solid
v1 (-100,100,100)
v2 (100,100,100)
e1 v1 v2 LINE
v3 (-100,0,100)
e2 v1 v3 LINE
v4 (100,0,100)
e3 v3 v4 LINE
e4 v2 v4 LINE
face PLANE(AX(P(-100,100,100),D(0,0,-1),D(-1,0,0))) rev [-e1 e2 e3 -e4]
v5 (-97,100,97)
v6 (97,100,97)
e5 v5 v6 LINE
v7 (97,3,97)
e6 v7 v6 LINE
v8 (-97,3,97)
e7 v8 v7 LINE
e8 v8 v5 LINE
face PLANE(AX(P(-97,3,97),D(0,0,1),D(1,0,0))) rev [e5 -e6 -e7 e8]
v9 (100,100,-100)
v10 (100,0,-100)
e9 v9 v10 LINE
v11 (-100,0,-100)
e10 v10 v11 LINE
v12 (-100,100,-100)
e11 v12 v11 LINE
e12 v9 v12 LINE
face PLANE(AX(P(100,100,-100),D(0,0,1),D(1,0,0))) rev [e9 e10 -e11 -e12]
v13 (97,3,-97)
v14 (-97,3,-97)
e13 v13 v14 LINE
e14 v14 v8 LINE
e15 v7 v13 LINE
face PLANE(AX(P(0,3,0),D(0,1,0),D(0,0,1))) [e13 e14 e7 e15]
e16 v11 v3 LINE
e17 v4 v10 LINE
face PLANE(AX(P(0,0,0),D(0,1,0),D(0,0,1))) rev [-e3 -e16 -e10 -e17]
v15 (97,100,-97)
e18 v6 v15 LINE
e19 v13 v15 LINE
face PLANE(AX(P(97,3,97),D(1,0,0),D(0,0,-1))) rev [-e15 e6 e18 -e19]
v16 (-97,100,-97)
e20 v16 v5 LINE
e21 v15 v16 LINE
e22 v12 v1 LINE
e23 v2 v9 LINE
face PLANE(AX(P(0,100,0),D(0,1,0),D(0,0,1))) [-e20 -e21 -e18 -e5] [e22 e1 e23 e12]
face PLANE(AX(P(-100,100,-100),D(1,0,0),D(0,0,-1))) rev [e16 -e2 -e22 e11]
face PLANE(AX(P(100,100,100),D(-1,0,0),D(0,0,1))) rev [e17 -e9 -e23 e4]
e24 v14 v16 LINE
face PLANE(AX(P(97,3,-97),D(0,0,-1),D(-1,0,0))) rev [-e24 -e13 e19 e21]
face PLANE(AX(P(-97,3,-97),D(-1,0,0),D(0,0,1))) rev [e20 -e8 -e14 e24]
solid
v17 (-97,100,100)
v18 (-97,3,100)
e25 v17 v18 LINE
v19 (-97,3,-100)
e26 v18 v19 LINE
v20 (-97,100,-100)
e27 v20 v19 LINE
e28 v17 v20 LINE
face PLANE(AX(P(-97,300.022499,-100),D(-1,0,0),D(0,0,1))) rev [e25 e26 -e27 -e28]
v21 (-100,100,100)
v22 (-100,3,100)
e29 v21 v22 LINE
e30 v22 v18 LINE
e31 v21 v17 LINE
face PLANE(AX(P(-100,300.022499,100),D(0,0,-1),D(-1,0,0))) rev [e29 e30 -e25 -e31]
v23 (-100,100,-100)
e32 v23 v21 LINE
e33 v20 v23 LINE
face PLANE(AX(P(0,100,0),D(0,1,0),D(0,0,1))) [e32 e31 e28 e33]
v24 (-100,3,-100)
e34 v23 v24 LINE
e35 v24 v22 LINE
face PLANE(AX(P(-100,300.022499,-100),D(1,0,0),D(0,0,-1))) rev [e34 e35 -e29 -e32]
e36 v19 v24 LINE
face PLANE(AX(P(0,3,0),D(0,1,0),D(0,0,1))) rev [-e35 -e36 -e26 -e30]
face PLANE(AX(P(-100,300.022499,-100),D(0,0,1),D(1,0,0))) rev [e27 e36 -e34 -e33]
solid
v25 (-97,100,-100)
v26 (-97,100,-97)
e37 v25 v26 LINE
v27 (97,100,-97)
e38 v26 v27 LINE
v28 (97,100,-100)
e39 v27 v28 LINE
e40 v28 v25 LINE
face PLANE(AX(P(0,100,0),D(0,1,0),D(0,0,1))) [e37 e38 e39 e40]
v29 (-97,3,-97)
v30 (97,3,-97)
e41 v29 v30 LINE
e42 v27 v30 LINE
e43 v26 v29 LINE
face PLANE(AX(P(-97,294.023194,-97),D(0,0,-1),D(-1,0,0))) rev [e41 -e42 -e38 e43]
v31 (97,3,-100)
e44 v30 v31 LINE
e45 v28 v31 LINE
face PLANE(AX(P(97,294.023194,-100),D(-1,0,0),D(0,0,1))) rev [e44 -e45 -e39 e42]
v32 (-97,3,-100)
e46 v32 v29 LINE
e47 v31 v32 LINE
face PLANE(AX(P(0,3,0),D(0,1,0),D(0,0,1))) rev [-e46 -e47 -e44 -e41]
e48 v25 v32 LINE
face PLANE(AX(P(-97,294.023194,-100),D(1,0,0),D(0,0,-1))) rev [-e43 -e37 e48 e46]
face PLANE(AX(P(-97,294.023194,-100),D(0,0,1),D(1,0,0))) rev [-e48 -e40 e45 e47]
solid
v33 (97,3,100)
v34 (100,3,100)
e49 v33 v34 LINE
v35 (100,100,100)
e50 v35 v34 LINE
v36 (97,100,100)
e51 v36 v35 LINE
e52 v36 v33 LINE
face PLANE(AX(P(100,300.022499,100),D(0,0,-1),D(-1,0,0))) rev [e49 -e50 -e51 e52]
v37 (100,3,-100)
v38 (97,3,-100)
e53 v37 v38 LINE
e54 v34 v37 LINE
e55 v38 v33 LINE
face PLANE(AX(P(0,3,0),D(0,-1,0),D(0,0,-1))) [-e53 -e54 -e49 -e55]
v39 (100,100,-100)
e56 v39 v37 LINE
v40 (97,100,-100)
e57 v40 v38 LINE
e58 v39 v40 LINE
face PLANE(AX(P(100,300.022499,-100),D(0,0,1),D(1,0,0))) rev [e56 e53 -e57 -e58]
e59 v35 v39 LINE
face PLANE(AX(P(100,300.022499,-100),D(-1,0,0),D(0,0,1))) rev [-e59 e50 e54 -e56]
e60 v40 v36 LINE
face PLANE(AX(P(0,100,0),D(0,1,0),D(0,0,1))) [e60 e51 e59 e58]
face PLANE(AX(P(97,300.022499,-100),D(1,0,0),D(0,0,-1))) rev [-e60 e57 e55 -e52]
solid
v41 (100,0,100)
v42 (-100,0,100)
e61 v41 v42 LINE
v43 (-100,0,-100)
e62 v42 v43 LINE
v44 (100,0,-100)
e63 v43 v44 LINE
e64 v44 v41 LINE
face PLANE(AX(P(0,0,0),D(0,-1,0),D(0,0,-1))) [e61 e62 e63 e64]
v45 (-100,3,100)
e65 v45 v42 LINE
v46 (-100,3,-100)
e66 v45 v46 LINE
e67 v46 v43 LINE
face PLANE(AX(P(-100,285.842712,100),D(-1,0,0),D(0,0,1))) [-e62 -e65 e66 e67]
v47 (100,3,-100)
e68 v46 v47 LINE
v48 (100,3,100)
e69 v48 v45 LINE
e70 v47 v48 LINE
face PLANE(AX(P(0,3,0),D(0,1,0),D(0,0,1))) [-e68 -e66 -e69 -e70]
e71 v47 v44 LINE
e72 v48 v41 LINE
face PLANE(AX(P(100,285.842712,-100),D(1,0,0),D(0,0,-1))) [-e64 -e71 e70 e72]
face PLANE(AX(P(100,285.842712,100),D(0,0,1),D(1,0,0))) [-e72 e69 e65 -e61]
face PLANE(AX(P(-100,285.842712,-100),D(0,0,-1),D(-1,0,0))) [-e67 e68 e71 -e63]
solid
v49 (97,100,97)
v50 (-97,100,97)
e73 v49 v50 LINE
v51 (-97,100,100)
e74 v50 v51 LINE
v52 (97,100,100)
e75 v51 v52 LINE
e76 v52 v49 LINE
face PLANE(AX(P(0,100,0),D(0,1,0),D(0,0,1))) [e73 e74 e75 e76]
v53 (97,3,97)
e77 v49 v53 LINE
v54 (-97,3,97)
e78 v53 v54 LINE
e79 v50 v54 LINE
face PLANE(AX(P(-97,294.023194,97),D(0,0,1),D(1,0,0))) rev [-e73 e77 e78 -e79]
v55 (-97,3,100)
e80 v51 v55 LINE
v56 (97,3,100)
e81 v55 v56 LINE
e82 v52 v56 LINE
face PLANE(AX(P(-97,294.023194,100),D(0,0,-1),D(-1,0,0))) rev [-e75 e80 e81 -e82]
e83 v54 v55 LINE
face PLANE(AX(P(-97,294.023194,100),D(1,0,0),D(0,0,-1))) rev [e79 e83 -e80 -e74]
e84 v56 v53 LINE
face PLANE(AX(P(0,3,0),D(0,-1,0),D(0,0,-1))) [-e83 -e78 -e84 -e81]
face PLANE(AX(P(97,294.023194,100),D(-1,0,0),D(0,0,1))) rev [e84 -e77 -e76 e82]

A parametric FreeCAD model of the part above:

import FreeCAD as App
import Part
import Sketcher
from FreeCAD import Vector

doc = App.newDocument("Part")
body = doc.addObject("PartDesign::Body", "Body")

sketch1 = body.newObject("Sketcher::SketchObject", "Sketch")
sketch1.AttachmentSupport = (doc.getObject("XZ_Plane"), [""])
sketch1.MapMode = "FlatFace"
sketch1.addGeometry(Part.LineSegment(Vector(-100, -100, 0), Vector(-100, 100, 0)), False)
sketch1.addGeometry(Part.LineSegment(Vector(-100, 100, 0), Vector(100, 100, 0)), False)
sketch1.addGeometry(Part.LineSegment(Vector(100, 100, 0), Vector(100, -100, 0)), False)
sketch1.addGeometry(Part.LineSegment(Vector(100, -100, 0), Vector(-100, -100, 0)), False)
sketch1.addConstraint(Sketcher.Constraint("Coincident", 0, 2, 1, 1))
sketch1.addConstraint(Sketcher.Constraint("Coincident", 1, 2, 2, 1))
sketch1.addConstraint(Sketcher.Constraint("Coincident", 2, 2, 3, 1))
sketch1.addConstraint(Sketcher.Constraint("Coincident", 3, 2, 0, 1))
sketch1.addConstraint(Sketcher.Constraint("Vertical", 0))
sketch1.addConstraint(Sketcher.Constraint("Horizontal", 1))
sketch1.addConstraint(Sketcher.Constraint("Vertical", 2))
sketch1.addConstraint(Sketcher.Constraint("Horizontal", 3))
sketch1.addConstraint(Sketcher.Constraint("Symmetric", 0, 2, 2, 2, -1, 1))
sketch1.addConstraint(Sketcher.Constraint("Equal", 3, 0))
sketch1.addConstraint(Sketcher.Constraint("DistanceX", 1, 1, 1, 2, 200.0))
pad1 = body.newObject("PartDesign::Pad", "Pad")
pad1.Profile = sketch1
pad1.Length = 100
pad1.Reversed = True

sketch2 = body.newObject("Sketcher::SketchObject", "Sketch001")
sketch2.AttachmentSupport = (doc.getObject("XZ_Plane"), [""])
sketch2.MapMode = "FlatFace"
sketch2.AttachmentOffset = App.Placement(Vector(0, 0, -100), App.Rotation())
sketch2.addGeometry(Part.LineSegment(Vector(-97, -97, 0), Vector(-97, 97, 0)), False)
sketch2.addGeometry(Part.LineSegment(Vector(-97, 97, 0), Vector(97, 97, 0)), False)
sketch2.addGeometry(Part.LineSegment(Vector(97, 97, 0), Vector(97, -97, 0)), False)
sketch2.addGeometry(Part.LineSegment(Vector(97, -97, 0), Vector(-97, -97, 0)), False)
sketch2.addConstraint(Sketcher.Constraint("Coincident", 0, 2, 1, 1))
sketch2.addConstraint(Sketcher.Constraint("Coincident", 1, 2, 2, 1))
sketch2.addConstraint(Sketcher.Constraint("Coincident", 2, 2, 3, 1))
sketch2.addConstraint(Sketcher.Constraint("Coincident", 3, 2, 0, 1))
sketch2.addConstraint(Sketcher.Constraint("Vertical", 0))
sketch2.addConstraint(Sketcher.Constraint("Horizontal", 1))
sketch2.addConstraint(Sketcher.Constraint("Vertical", 2))
sketch2.addConstraint(Sketcher.Constraint("Horizontal", 3))
sketch2.addConstraint(Sketcher.Constraint("Symmetric", 0, 2, 2, 2, -1, 1))
sketch2.addConstraint(Sketcher.Constraint("Equal", 3, 0))
sketch2.addConstraint(Sketcher.Constraint("DistanceX", 1, 1, 1, 2, 194.0))
pocket1 = body.newObject("PartDesign::Pocket", "Pocket")
pocket1.Profile = sketch2
pocket1.Length = 97
pocket1.Reversed = True
body2 = doc.addObject("PartDesign::Body", "Body001")

sketch3 = body2.newObject("Sketcher::SketchObject", "Sketch002")
sketch3.AttachmentSupport = (doc.getObject("XZ_Plane001"), [""])
sketch3.MapMode = "FlatFace"
sketch3.addGeometry(Part.LineSegment(Vector(-100, 100, 0), Vector(-100, -100, 0)), False)
sketch3.addGeometry(Part.LineSegment(Vector(-100, -100, 0), Vector(100, -100, 0)), False)
sketch3.addGeometry(Part.LineSegment(Vector(100, -100, 0), Vector(100, 100, 0)), False)
sketch3.addGeometry(Part.LineSegment(Vector(100, 100, 0), Vector(-100, 100, 0)), False)
sketch3.addConstraint(Sketcher.Constraint("Coincident", 0, 2, 1, 1))
sketch3.addConstraint(Sketcher.Constraint("Coincident", 1, 2, 2, 1))
sketch3.addConstraint(Sketcher.Constraint("Coincident", 2, 2, 3, 1))
sketch3.addConstraint(Sketcher.Constraint("Coincident", 3, 2, 0, 1))
sketch3.addConstraint(Sketcher.Constraint("Vertical", 0))
sketch3.addConstraint(Sketcher.Constraint("Horizontal", 1))
sketch3.addConstraint(Sketcher.Constraint("Vertical", 2))
sketch3.addConstraint(Sketcher.Constraint("Horizontal", 3))
sketch3.addConstraint(Sketcher.Constraint("Symmetric", 0, 2, 2, 2, -1, 1))
sketch3.addConstraint(Sketcher.Constraint("Equal", 3, 0))
sketch3.addConstraint(Sketcher.Constraint("DistanceX", 1, 1, 1, 2, 200.0))
pad2 = body2.newObject("PartDesign::Pad", "Pad001")
pad2.Profile = sketch3
pad2.Length = 3
pad2.Reversed = True
body3 = doc.addObject("PartDesign::Body", "Body002")

sketch4 = body3.newObject("Sketcher::SketchObject", "Sketch003")
sketch4.AttachmentSupport = (doc.getObject("XZ_Plane002"), [""])
sketch4.MapMode = "FlatFace"
sketch4.AttachmentOffset = App.Placement(Vector(0, 0, -3), App.Rotation())
sketch4.addGeometry(Part.LineSegment(Vector(-100, -100, 0), Vector(-100, 100, 0)), False)
sketch4.addGeometry(Part.LineSegment(Vector(-100, 100, 0), Vector(-97, 100, 0)), False)
sketch4.addGeometry(Part.LineSegment(Vector(-97, 100, 0), Vector(-97, -100, 0)), False)
sketch4.addGeometry(Part.LineSegment(Vector(-97, -100, 0), Vector(-100, -100, 0)), False)
sketch4.addConstraint(Sketcher.Constraint("Coincident", 0, 2, 1, 1))
sketch4.addConstraint(Sketcher.Constraint("Coincident", 1, 2, 2, 1))
sketch4.addConstraint(Sketcher.Constraint("Coincident", 2, 2, 3, 1))
sketch4.addConstraint(Sketcher.Constraint("Coincident", 3, 2, 0, 1))
sketch4.addConstraint(Sketcher.Constraint("Vertical", 0))
sketch4.addConstraint(Sketcher.Constraint("Horizontal", 1))
sketch4.addConstraint(Sketcher.Constraint("Vertical", 2))
sketch4.addConstraint(Sketcher.Constraint("Horizontal", 3))
sketch4.addConstraint(Sketcher.Constraint("DistanceX", 1, 1, 1, 2, 3.0))
sketch4.addConstraint(Sketcher.Constraint("DistanceY", 0, 1, 0, 2, 200.0))
sketch4.addConstraint(Sketcher.Constraint("DistanceX", 0, 2, -1, 1, 100.0))
sketch4.addConstraint(Sketcher.Constraint("DistanceY", -1, 1, 0, 2, 100.0))
pad3 = body3.newObject("PartDesign::Pad", "Pad002")
pad3.Profile = sketch4
pad3.Length = 97
pad3.Reversed = True
body4 = doc.addObject("PartDesign::Body", "Body003")

sketch5 = body4.newObject("Sketcher::SketchObject", "Sketch004")
sketch5.AttachmentSupport = (doc.getObject("XZ_Plane003"), [""])
sketch5.MapMode = "FlatFace"
sketch5.AttachmentOffset = App.Placement(Vector(0, 0, -3), App.Rotation())
sketch5.addGeometry(Part.LineSegment(Vector(97, -100, 0), Vector(97, 100, 0)), False)
sketch5.addGeometry(Part.LineSegment(Vector(97, 100, 0), Vector(100, 100, 0)), False)
sketch5.addGeometry(Part.LineSegment(Vector(100, 100, 0), Vector(100, -100, 0)), False)
sketch5.addGeometry(Part.LineSegment(Vector(100, -100, 0), Vector(97, -100, 0)), False)
sketch5.addConstraint(Sketcher.Constraint("Coincident", 0, 2, 1, 1))
sketch5.addConstraint(Sketcher.Constraint("Coincident", 1, 2, 2, 1))
sketch5.addConstraint(Sketcher.Constraint("Coincident", 2, 2, 3, 1))
sketch5.addConstraint(Sketcher.Constraint("Coincident", 3, 2, 0, 1))
sketch5.addConstraint(Sketcher.Constraint("Vertical", 0))
sketch5.addConstraint(Sketcher.Constraint("Horizontal", 1))
sketch5.addConstraint(Sketcher.Constraint("Vertical", 2))
sketch5.addConstraint(Sketcher.Constraint("Horizontal", 3))
sketch5.addConstraint(Sketcher.Constraint("DistanceX", 1, 1, 1, 2, 3.0))
sketch5.addConstraint(Sketcher.Constraint("DistanceY", 0, 1, 0, 2, 200.0))
sketch5.addConstraint(Sketcher.Constraint("DistanceX", -1, 1, 0, 2, 97.0))
sketch5.addConstraint(Sketcher.Constraint("DistanceY", -1, 1, 0, 2, 100.0))
pad4 = body4.newObject("PartDesign::Pad", "Pad003")
pad4.Profile = sketch5
pad4.Length = 97
pad4.Reversed = True
body5 = doc.addObject("PartDesign::Body", "Body004")

sketch6 = body5.newObject("Sketcher::SketchObject", "Sketch005")
sketch6.AttachmentSupport = (doc.getObject("XZ_Plane004"), [""])
sketch6.MapMode = "FlatFace"
sketch6.AttachmentOffset = App.Placement(Vector(0, 0, -3), App.Rotation())
sketch6.addGeometry(Part.LineSegment(Vector(-97, -100, 0), Vector(-97, -97, 0)), False)
sketch6.addGeometry(Part.LineSegment(Vector(-97, -97, 0), Vector(97, -97, 0)), False)
sketch6.addGeometry(Part.LineSegment(Vector(97, -97, 0), Vector(97, -100, 0)), False)
sketch6.addGeometry(Part.LineSegment(Vector(97, -100, 0), Vector(-97, -100, 0)), False)
sketch6.addConstraint(Sketcher.Constraint("Coincident", 0, 2, 1, 1))
sketch6.addConstraint(Sketcher.Constraint("Coincident", 1, 2, 2, 1))
sketch6.addConstraint(Sketcher.Constraint("Coincident", 2, 2, 3, 1))
sketch6.addConstraint(Sketcher.Constraint("Coincident", 3, 2, 0, 1))
sketch6.addConstraint(Sketcher.Constraint("Vertical", 0))
sketch6.addConstraint(Sketcher.Constraint("Horizontal", 1))
sketch6.addConstraint(Sketcher.Constraint("Vertical", 2))
sketch6.addConstraint(Sketcher.Constraint("Horizontal", 3))
sketch6.addConstraint(Sketcher.Constraint("DistanceX", 1, 1, 1, 2, 194.0))
sketch6.addConstraint(Sketcher.Constraint("DistanceY", 0, 1, 0, 2, 3.0))
sketch6.addConstraint(Sketcher.Constraint("DistanceX", 0, 2, -1, 1, 97.0))
sketch6.addConstraint(Sketcher.Constraint("DistanceY", 0, 2, -1, 1, 97.0))
pad5 = body5.newObject("PartDesign::Pad", "Pad004")
pad5.Profile = sketch6
pad5.Length = 97
pad5.Reversed = True
body6 = doc.addObject("PartDesign::Body", "Body005")

sketch7 = body6.newObject("Sketcher::SketchObject", "Sketch006")
sketch7.AttachmentSupport = (doc.getObject("XZ_Plane005"), [""])
sketch7.MapMode = "FlatFace"
sketch7.AttachmentOffset = App.Placement(Vector(0, 0, -3), App.Rotation())
sketch7.addGeometry(Part.LineSegment(Vector(-97, 97, 0), Vector(-97, 100, 0)), False)
sketch7.addGeometry(Part.LineSegment(Vector(-97, 100, 0), Vector(97, 100, 0)), False)
sketch7.addGeometry(Part.LineSegment(Vector(97, 100, 0), Vector(97, 97, 0)), False)
sketch7.addGeometry(Part.LineSegment(Vector(97, 97, 0), Vector(-97, 97, 0)), False)
sketch7.addConstraint(Sketcher.Constraint("Coincident", 0, 2, 1, 1))
sketch7.addConstraint(Sketcher.Constraint("Coincident", 1, 2, 2, 1))
sketch7.addConstraint(Sketcher.Constraint("Coincident", 2, 2, 3, 1))
sketch7.addConstraint(Sketcher.Constraint("Coincident", 3, 2, 0, 1))
sketch7.addConstraint(Sketcher.Constraint("Vertical", 0))
sketch7.addConstraint(Sketcher.Constraint("Horizontal", 1))
sketch7.addConstraint(Sketcher.Constraint("Vertical", 2))
sketch7.addConstraint(Sketcher.Constraint("Horizontal", 3))
sketch7.addConstraint(Sketcher.Constraint("DistanceX", 1, 1, 1, 2, 194.0))
sketch7.addConstraint(Sketcher.Constraint("DistanceY", 0, 1, 0, 2, 3.0))
sketch7.addConstraint(Sketcher.Constraint("DistanceX", 0, 2, -1, 1, 97.0))
sketch7.addConstraint(Sketcher.Constraint("DistanceY", -1, 1, 0, 2, 100.0))
pad6 = body6.newObject("PartDesign::Pad", "Pad005")
pad6.Profile = sketch7
pad6.Length = 97
pad6.Reversed = True

doc.recompute()
